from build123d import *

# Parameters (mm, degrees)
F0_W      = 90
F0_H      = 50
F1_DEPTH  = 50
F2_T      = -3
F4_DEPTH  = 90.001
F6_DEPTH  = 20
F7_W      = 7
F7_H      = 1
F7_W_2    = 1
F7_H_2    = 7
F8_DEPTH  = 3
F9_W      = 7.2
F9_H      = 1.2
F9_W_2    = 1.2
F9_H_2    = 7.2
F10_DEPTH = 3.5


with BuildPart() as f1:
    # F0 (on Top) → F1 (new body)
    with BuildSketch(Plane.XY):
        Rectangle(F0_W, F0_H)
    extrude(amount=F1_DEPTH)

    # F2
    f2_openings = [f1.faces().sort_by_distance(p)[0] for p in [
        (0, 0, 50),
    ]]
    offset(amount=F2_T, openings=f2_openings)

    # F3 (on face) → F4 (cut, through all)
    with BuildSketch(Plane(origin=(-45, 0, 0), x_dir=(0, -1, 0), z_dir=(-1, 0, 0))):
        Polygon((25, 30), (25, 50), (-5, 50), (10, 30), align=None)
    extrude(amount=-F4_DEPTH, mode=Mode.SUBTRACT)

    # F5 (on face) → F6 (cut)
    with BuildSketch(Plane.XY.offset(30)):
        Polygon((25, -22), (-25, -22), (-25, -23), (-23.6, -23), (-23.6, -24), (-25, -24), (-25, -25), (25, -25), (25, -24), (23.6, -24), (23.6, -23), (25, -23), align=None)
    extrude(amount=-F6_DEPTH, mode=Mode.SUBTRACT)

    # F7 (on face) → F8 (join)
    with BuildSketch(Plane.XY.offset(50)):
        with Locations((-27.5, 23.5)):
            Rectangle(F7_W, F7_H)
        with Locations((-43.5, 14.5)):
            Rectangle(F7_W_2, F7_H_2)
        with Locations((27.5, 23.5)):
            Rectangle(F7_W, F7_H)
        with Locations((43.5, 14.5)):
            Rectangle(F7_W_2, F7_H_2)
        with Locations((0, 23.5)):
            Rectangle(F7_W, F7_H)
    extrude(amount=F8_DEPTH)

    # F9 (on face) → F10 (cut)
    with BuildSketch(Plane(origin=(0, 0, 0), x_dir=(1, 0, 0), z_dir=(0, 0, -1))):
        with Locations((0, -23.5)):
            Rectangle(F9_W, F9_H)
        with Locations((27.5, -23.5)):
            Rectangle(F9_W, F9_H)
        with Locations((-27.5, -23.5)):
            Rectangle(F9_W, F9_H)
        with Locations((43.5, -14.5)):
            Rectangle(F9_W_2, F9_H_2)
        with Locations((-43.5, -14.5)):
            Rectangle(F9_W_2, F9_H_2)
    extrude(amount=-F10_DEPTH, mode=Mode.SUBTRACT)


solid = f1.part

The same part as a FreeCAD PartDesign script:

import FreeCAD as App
import Part
import Sketcher
Q = App.Units.Quantity


def faces_at(feature, points):
    """Names of the faces that lie closest to the given points."""
    faces = feature.Shape.Faces
    near = lambda p: min(range(len(faces)), key=lambda i: faces[i].distToShape(Part.Vertex(*p))[0])
    return sorted({f"Face{near(p) + 1}" for p in points})

doc = App.newDocument("Part")
body = doc.addObject("PartDesign::Body", "Body")

sketch1 = body.newObject("Sketcher::SketchObject", "Sketch")
sketch1.AttachmentSupport = (doc.getObject("XY_Plane"), [""])
sketch1.MapMode = "FlatFace"
sketch1.addGeometry([
    Part.LineSegment(App.Vector(-45, 25, 0), App.Vector(-45, -25, 0)),
    Part.LineSegment(App.Vector(-45, -25, 0), App.Vector(45, -25, 0)),
    Part.LineSegment(App.Vector(45, -25, 0), App.Vector(45, 25, 0)),
    Part.LineSegment(App.Vector(45, 25, 0), App.Vector(-45, 25, 0)),
], False)
sketch1.addConstraint([
    Sketcher.Constraint("Coincident", 0, 2, 1, 1),
    Sketcher.Constraint("Coincident", 1, 2, 2, 1),
    Sketcher.Constraint("Coincident", 2, 2, 3, 1),
    Sketcher.Constraint("Coincident", 3, 2, 0, 1),
    Sketcher.Constraint("Vertical", 0),
    Sketcher.Constraint("Horizontal", 1),
    Sketcher.Constraint("Vertical", 2),
    Sketcher.Constraint("Horizontal", 3),
    Sketcher.Constraint("Symmetric", 0, 2, 2, 2, -1, 1),
    Sketcher.Constraint("DistanceX", 1, 1, 1, 2, Q("90 mm")),
    Sketcher.Constraint("DistanceY", 0, 2, 0, 1, Q("50 mm")),
])
pad1 = body.newObject("PartDesign::Pad", "Pad")
pad1.Profile = sketch1
pad1.Length = 50
doc.recompute()

thickness = body.newObject("PartDesign::Thickness", "Thickness")
thickness.Base = (pad1, faces_at(pad1, [(0, 0, 50)]))
thickness.Value = 3
thickness.Reversed = True
thickness.Join = "Arc"

sketch2 = body.newObject("Sketcher::SketchObject", "Sketch001")
sketch2.AttachmentSupport = (doc.getObject("YZ_Plane"), [""])
sketch2.MapMode = "FlatFace"
sketch2.AttachmentOffset = App.Placement(App.Vector(0, 0, -45), App.Rotation())
sketch2.addGeometry([
    Part.LineSegment(App.Vector(-25, 30, 0), App.Vector(-25, 50, 0)),
    Part.LineSegment(App.Vector(-25, 50, 0), App.Vector(5, 50, 0)),
    Part.LineSegment(App.Vector(5, 50, 0), App.Vector(-10, 30, 0)),
    Part.LineSegment(App.Vector(-10, 30, 0), App.Vector(-25, 30, 0)),
], False)
sketch2.addConstraint([
    Sketcher.Constraint("Coincident", 0, 2, 1, 1),
    Sketcher.Constraint("Coincident", 1, 2, 2, 1),
    Sketcher.Constraint("Coincident", 2, 2, 3, 1),
    Sketcher.Constraint("Coincident", 3, 2, 0, 1),
    Sketcher.Constraint("Vertical", 0),
    Sketcher.Constraint("Horizontal", 1),
    Sketcher.Constraint("Horizontal", 3),
    Sketcher.Constraint("DistanceX", 1, 1, 1, 2, Q("30 mm")),
    Sketcher.Constraint("DistanceX", 3, 2, 3, 1, Q("15 mm")),
    Sketcher.Constraint("DistanceY", 0, 1, 0, 2, Q("20 mm")),
    Sketcher.Constraint("DistanceX", 0, 2, -1, 1, Q("25 mm")),
    Sketcher.Constraint("DistanceY", -1, 1, 0, 2, Q("50 mm")),
])
pocket1 = body.newObject("PartDesign::Pocket", "Pocket")
pocket1.Profile = sketch2
pocket1.Type = "ThroughAll"
pocket1.Reversed = True

sketch3 = body.newObject("Sketcher::SketchObject", "Sketch002")
sketch3.AttachmentSupport = (doc.getObject("XY_Plane"), [""])
sketch3.MapMode = "FlatFace"
sketch3.AttachmentOffset = App.Placement(App.Vector(0, 0, 30), App.Rotation())
sketch3.addGeometry([
    Part.LineSegment(App.Vector(25, -22, 0), App.Vector(-25, -22, 0)),
    Part.LineSegment(App.Vector(-25, -22, 0), App.Vector(-25, -23, 0)),
    Part.LineSegment(App.Vector(-25, -23, 0), App.Vector(-23.6, -23, 0)),
    Part.LineSegment(App.Vector(-23.6, -23, 0), App.Vector(-23.6, -24, 0)),
    Part.LineSegment(App.Vector(-23.6, -24, 0), App.Vector(-25, -24, 0)),
    Part.LineSegment(App.Vector(-25, -24, 0), App.Vector(-25, -25, 0)),
    Part.LineSegment(App.Vector(-25, -25, 0), App.Vector(25, -25, 0)),
    Part.LineSegment(App.Vector(25, -25, 0), App.Vector(25, -24, 0)),
    Part.LineSegment(App.Vector(25, -24, 0), App.Vector(23.6, -24, 0)),
    Part.LineSegment(App.Vector(23.6, -24, 0), App.Vector(23.6, -23, 0)),
    Part.LineSegment(App.Vector(23.6, -23, 0), App.Vector(25, -23, 0)),
    Part.LineSegment(App.Vector(25, -23, 0), App.Vector(25, -22, 0)),
], False)
sketch3.addConstraint([
    Sketcher.Constraint("Coincident", 0, 2, 1, 1),
    Sketcher.Constraint("Coincident", 1, 2, 2, 1),
    Sketcher.Constraint("Coincident", 2, 2, 3, 1),
    Sketcher.Constraint("Coincident", 3, 2, 4, 1),
    Sketcher.Constraint("Coincident", 4, 2, 5, 1),
    Sketcher.Constraint("Coincident", 5, 2, 6, 1),
    Sketcher.Constraint("Coincident", 6, 2, 7, 1),
    Sketcher.Constraint("Coincident", 7, 2, 8, 1),
    Sketcher.Constraint("Coincident", 8, 2, 9, 1),
    Sketcher.Constraint("Coincident", 9, 2, 10, 1),
    Sketcher.Constraint("Coincident", 10, 2, 11, 1),
    Sketcher.Constraint("Coincident", 11, 2, 0, 1),
    Sketcher.Constraint("Horizontal", 0),
    Sketcher.Constraint("Vertical", 1),
    Sketcher.Constraint("Horizontal", 2),
    Sketcher.Constraint("Vertical", 3),
    Sketcher.Constraint("Horizontal", 4),
    Sketcher.Constraint("Vertical", 5),
    Sketcher.Constraint("Horizontal", 6),
    Sketcher.Constraint("Vertical", 7),
    Sketcher.Constraint("Horizontal", 8),
    Sketcher.Constraint("Vertical", 9),
    Sketcher.Constraint("Horizontal", 10),
    Sketcher.Constraint("Vertical", 11),
    Sketcher.Constraint("Symmetric", 4, 2, 7, 2, -2),
    Sketcher.Constraint("Symmetric", 2, 2, 9, 2, -2),
    Sketcher.Constraint("Vertical", 1, 2, 4, 2),
    Sketcher.Constraint("Vertical", 7, 2, 10, 2),
    Sketcher.Constraint("Equal", 1, 3),
    Sketcher.Constraint("Equal", 3, 5),
    Sketcher.Constraint("DistanceX", 0, 2, 0, 1, Q("50 mm")),
    Sketcher.Constraint("DistanceY", 1, 2, 1, 1, Q("1 mm")),
    Sketcher.Constraint("DistanceX", 2, 1, 2, 2, Q("1.4 mm")),
    Sketcher.Constraint("DistanceY", 0, 2, -1, 1, Q("22 mm")),
])
pocket2 = body.newObject("PartDesign::Pocket", "Pocket001")
pocket2.Profile = sketch3
pocket2.Length = 20

sketch4 = body.newObject("Sketcher::SketchObject", "Sketch003")
sketch4.AttachmentSupport = (doc.getObject("XY_Plane"), [""])
sketch4.MapMode = "FlatFace"
sketch4.AttachmentOffset = App.Placement(App.Vector(0, 0, 50), App.Rotation())
sketch4.addGeometry([
    Part.LineSegment(App.Vector(-31, 24, 0), App.Vector(-31, 23, 0)),
    Part.LineSegment(App.Vector(-31, 23, 0), App.Vector(-24, 23, 0)),
    Part.LineSegment(App.Vector(-24, 23, 0), App.Vector(-24, 24, 0)),
    Part.LineSegment(App.Vector(-24, 24, 0), App.Vector(-31, 24, 0)),
    Part.LineSegment(App.Vector(-44, 18, 0), App.Vector(-44, 11, 0)),
    Part.LineSegment(App.Vector(-44, 11, 0), App.Vector(-43, 11, 0)),
    Part.LineSegment(App.Vector(-43, 11, 0), App.Vector(-43, 18, 0)),
    Part.LineSegment(App.Vector(-43, 18, 0), App.Vector(-44, 18, 0)),
    Part.LineSegment(App.Vector(24, 24, 0), App.Vector(24, 23, 0)),
    Part.LineSegment(App.Vector(24, 23, 0), App.Vector(31, 23, 0)),
    Part.LineSegment(App.Vector(31, 23, 0), App.Vector(31, 24, 0)),
    Part.LineSegment(App.Vector(31, 24, 0), App.Vector(24, 24, 0)),
    Part.LineSegment(App.Vector(43, 18, 0), App.Vector(43, 11, 0)),
    Part.LineSegment(App.Vector(43, 11, 0), App.Vector(44, 11, 0)),
    Part.LineSegment(App.Vector(44, 11, 0), App.Vector(44, 18, 0)),
    Part.LineSegment(App.Vector(44, 18, 0), App.Vector(43, 18, 0)),
    Part.LineSegment(App.Vector(-3.5, 24, 0), App.Vector(-3.5, 23, 0)),
    Part.LineSegment(App.Vector(-3.5, 23, 0), App.Vector(3.5, 23, 0)),
    Part.LineSegment(App.Vector(3.5, 23, 0), App.Vector(3.5, 24, 0)),
    Part.LineSegment(App.Vector(3.5, 24, 0), App.Vector(-3.5, 24, 0)),
], False)
sketch4.addConstraint([
    Sketcher.Constraint("Coincident", 0, 2, 1, 1),
    Sketcher.Constraint("Coincident", 1, 2, 2, 1),
    Sketcher.Constraint("Coincident", 2, 2, 3, 1),
    Sketcher.Constraint("Coincident", 3, 2, 0, 1),
    Sketcher.Constraint("Coincident", 4, 2, 5, 1),
    Sketcher.Constraint("Coincident", 5, 2, 6, 1),
    Sketcher.Constraint("Coincident", 6, 2, 7, 1),
    Sketcher.Constraint("Coincident", 7, 2, 4, 1),
    Sketcher.Constraint("Coincident", 8, 2, 9, 1),
    Sketcher.Constraint("Coincident", 9, 2, 10, 1),
    Sketcher.Constraint("Coincident", 10, 2, 11, 1),
    Sketcher.Constraint("Coincident", 11, 2, 8, 1),
    Sketcher.Constraint("Coincident", 12, 2, 13, 1),
    Sketcher.Constraint("Coincident", 13, 2, 14, 1),
    Sketcher.Constraint("Coincident", 14, 2, 15, 1),
    Sketcher.Constraint("Coincident", 15, 2, 12, 1),
    Sketcher.Constraint("Coincident", 16, 2, 17, 1),
    Sketcher.Constraint("Coincident", 17, 2, 18, 1),
    Sketcher.Constraint("Coincident", 18, 2, 19, 1),
    Sketcher.Constraint("Coincident", 19, 2, 16, 1),
    Sketcher.Constraint("Vertical", 0),
    Sketcher.Constraint("Horizontal", 1),
    Sketcher.Constraint("Vertical", 2),
    Sketcher.Constraint("Horizontal", 3),
    Sketcher.Constraint("Vertical", 4),
    Sketcher.Constraint("Horizontal", 5),
    Sketcher.Constraint("Vertical", 6),
    Sketcher.Constraint("Horizontal", 7),
    Sketcher.Constraint("Vertical", 8),
    Sketcher.Constraint("Horizontal", 9),
    Sketcher.Constraint("Vertical", 10),
    Sketcher.Constraint("Horizontal", 11),
    Sketcher.Constraint("Vertical", 12),
    Sketcher.Constraint("Horizontal", 13),
    Sketcher.Constraint("Vertical", 14),
    Sketcher.Constraint("Horizontal", 15),
    Sketcher.Constraint("Vertical", 16),
    Sketcher.Constraint("Horizontal", 17),
    Sketcher.Constraint("Vertical", 18),
    Sketcher.Constraint("Horizontal", 19),
    Sketcher.Constraint("Symmetric", 1, 2, 8, 2, -2),
    Sketcher.Constraint("Symmetric", 3, 2, 10, 2, -2),
    Sketcher.Constraint("Symmetric", 5, 2, 12, 2, -2),
    Sketcher.Constraint("Symmetric", 7, 2, 14, 2, -2),
    Sketcher.Constraint("Horizontal", 9, 2, 16, 2),
    Sketcher.Constraint("Horizontal", 11, 2, 18, 2),
    Sketcher.Constraint("Equal", 11, 17),
    Sketcher.Constraint("Equal", 15, 0),
    Sketcher.Constraint("Equal", 19, 4),
    Sketcher.Constraint("DistanceX", 1, 1, 1, 2, Q("7 mm")),
    Sketcher.Constraint("DistanceX", 5, 1, 5, 2, Q("1 mm")),
    Sketcher.Constraint("DistanceX", 0, 2, -1, 1, Q("31 mm")),
    Sketcher.Constraint("DistanceY", -1, 1, 0, 2, Q("23 mm")),
    Sketcher.Constraint("DistanceX", 4, 2, -1, 1, Q("44 mm")),
    Sketcher.Constraint("DistanceY", -1, 1, 4, 2, Q("11 mm")),
    Sketcher.Constraint("DistanceX", 16, 2, -1, 1, Q("3.5 mm")),
])
pad2 = body.newObject("PartDesign::Pad", "Pad001")
pad2.Profile = sketch4
pad2.Length = 3

sketch5 = body.newObject("Sketcher::SketchObject", "Sketch004")
sketch5.AttachmentSupport = (doc.getObject("XY_Plane"), [""])
sketch5.MapMode = "FlatFace"
sketch5.addGeometry([
    Part.LineSegment(App.Vector(-3.6, 22.9, 0), App.Vector(-3.6, 24.1, 0)),
    Part.LineSegment(App.Vector(-3.6, 24.1, 0), App.Vector(3.6, 24.1, 0)),
    Part.LineSegment(App.Vector(3.6, 24.1, 0), App.Vector(3.6, 22.9, 0)),
    Part.LineSegment(App.Vector(3.6, 22.9, 0), App.Vector(-3.6, 22.9, 0)),
    Part.LineSegment(App.Vector(23.9, 22.9, 0), App.Vector(23.9, 24.1, 0)),
    Part.LineSegment(App.Vector(23.9, 24.1, 0), App.Vector(31.1, 24.1, 0)),
    Part.LineSegment(App.Vector(31.1, 24.1, 0), App.Vector(31.1, 22.9, 0)),
    Part.LineSegment(App.Vector(31.1, 22.9, 0), App.Vector(23.9, 22.9, 0)),
    Part.LineSegment(App.Vector(-31.1, 22.9, 0), App.Vector(-31.1, 24.1, 0)),
    Part.LineSegment(App.Vector(-31.1, 24.1, 0), App.Vector(-23.9, 24.1, 0)),
    Part.LineSegment(App.Vector(-23.9, 24.1, 0), App.Vector(-23.9, 22.9, 0)),
    Part.LineSegment(App.Vector(-23.9, 22.9, 0), App.Vector(-31.1, 22.9, 0)),
    Part.LineSegment(App.Vector(42.9, 10.9, 0), App.Vector(42.9, 18.1, 0)),
    Part.LineSegment(App.Vector(42.9, 18.1, 0), App.Vector(44.1, 18.1, 0)),
    Part.LineSegment(App.Vector(44.1, 18.1, 0), App.Vector(44.1, 10.9, 0)),
    Part.LineSegment(App.Vector(44.1, 10.9, 0), App.Vector(42.9, 10.9, 0)),
    Part.LineSegment(App.Vector(-44.1, 10.9, 0), App.Vector(-44.1, 18.1, 0)),
    Part.LineSegment(App.Vector(-44.1, 18.1, 0), App.Vector(-42.9, 18.1, 0)),
    Part.LineSegment(App.Vector(-42.9, 18.1, 0), App.Vector(-42.9, 10.9, 0)),
    Part.LineSegment(App.Vector(-42.9, 10.9, 0), App.Vector(-44.1, 10.9, 0)),
], False)
sketch5.addConstraint([
    Sketcher.Constraint("Coincident", 0, 2, 1, 1),
    Sketcher.Constraint("Coincident", 1, 2, 2, 1),
    Sketcher.Constraint("Coincident", 2, 2, 3, 1),
    Sketcher.Constraint("Coincident", 3, 2, 0, 1),
    Sketcher.Constraint("Coincident", 4, 2, 5, 1),
    Sketcher.Constraint("Coincident", 5, 2, 6, 1),
    Sketcher.Constraint("Coincident", 6, 2, 7, 1),
    Sketcher.Constraint("Coincident", 7, 2, 4, 1),
    Sketcher.Constraint("Coincident", 8, 2, 9, 1),
    Sketcher.Constraint("Coincident", 9, 2, 10, 1),
    Sketcher.Constraint("Coincident", 10, 2, 11, 1),
    Sketcher.Constraint("Coincident", 11, 2, 8, 1),
    Sketcher.Constraint("Coincident", 12, 2, 13, 1),
    Sketcher.Constraint("Coincident", 13, 2, 14, 1),
    Sketcher.Constraint("Coincident", 14, 2, 15, 1),
    Sketcher.Constraint("Coincident", 15, 2, 12, 1),
    Sketcher.Constraint("Coincident", 16, 2, 17, 1),
    Sketcher.Constraint("Coincident", 17, 2, 18, 1),
    Sketcher.Constraint("Coincident", 18, 2, 19, 1),
    Sketcher.Constraint("Coincident", 19, 2, 16, 1),
    Sketcher.Constraint("Vertical", 0),
    Sketcher.Constraint("Horizontal", 1),
    Sketcher.Constraint("Vertical", 2),
    Sketcher.Constraint("Horizontal", 3),
    Sketcher.Constraint("Vertical", 4),
    Sketcher.Constraint("Horizontal", 5),
    Sketcher.Constraint("Vertical", 6),
    Sketcher.Constraint("Horizontal", 7),
    Sketcher.Constraint("Vertical", 8),
    Sketcher.Constraint("Horizontal", 9),
    Sketcher.Constraint("Vertical", 10),
    Sketcher.Constraint("Horizontal", 11),
    Sketcher.Constraint("Vertical", 12),
    Sketcher.Constraint("Horizontal", 13),
    Sketcher.Constraint("Vertical", 14),
    Sketcher.Constraint("Horizontal", 15),
    Sketcher.Constraint("Vertical", 16),
    Sketcher.Constraint("Horizontal", 17),
    Sketcher.Constraint("Vertical", 18),
    Sketcher.Constraint("Horizontal", 19),
    Sketcher.Constraint("Symmetric", 5, 2, 8, 2, -2),
    Sketcher.Constraint("Symmetric", 7, 2, 10, 2, -2),
    Sketcher.Constraint("Symmetric", 13, 2, 16, 2, -2),
    Sketcher.Constraint("Symmetric", 15, 2, 18, 2, -2),
    Sketcher.Constraint("Horizontal", 1, 2, 4, 2),
    Sketcher.Constraint("Horizontal", 3, 2, 6, 2),
    Sketcher.Constraint("Equal", 3, 5),
    Sketcher.Constraint("Equal", 19, 0),
    Sketcher.Constraint("Equal", 11, 12),
    Sketcher.Constraint("DistanceX", 1, 1, 1, 2, Q("7.2 mm")),
    Sketcher.Constraint("DistanceX", 13, 1, 13, 2, Q("1.2 mm")),
    Sketcher.Constraint("DistanceX", 8, 2, 4, 2, Q("55 mm")),
    Sketcher.Constraint("DistanceY", 12, 2, 5, 2, Q("6 mm")),
    Sketcher.Constraint("DistanceX", 7, 2, 12, 2, Q("19 mm")),
    Sketcher.Constraint("DistanceX", 0, 2, -1, 1, Q("3.6 mm")),
    Sketcher.Constraint("DistanceY", -1, 1, 0, 2, Q("24.1 mm")),
])
pocket3 = body.newObject("PartDesign::Pocket", "Pocket002")
pocket3.Profile = sketch5
pocket3.Length = 3.5
pocket3.Reversed = True

doc.recompute()
